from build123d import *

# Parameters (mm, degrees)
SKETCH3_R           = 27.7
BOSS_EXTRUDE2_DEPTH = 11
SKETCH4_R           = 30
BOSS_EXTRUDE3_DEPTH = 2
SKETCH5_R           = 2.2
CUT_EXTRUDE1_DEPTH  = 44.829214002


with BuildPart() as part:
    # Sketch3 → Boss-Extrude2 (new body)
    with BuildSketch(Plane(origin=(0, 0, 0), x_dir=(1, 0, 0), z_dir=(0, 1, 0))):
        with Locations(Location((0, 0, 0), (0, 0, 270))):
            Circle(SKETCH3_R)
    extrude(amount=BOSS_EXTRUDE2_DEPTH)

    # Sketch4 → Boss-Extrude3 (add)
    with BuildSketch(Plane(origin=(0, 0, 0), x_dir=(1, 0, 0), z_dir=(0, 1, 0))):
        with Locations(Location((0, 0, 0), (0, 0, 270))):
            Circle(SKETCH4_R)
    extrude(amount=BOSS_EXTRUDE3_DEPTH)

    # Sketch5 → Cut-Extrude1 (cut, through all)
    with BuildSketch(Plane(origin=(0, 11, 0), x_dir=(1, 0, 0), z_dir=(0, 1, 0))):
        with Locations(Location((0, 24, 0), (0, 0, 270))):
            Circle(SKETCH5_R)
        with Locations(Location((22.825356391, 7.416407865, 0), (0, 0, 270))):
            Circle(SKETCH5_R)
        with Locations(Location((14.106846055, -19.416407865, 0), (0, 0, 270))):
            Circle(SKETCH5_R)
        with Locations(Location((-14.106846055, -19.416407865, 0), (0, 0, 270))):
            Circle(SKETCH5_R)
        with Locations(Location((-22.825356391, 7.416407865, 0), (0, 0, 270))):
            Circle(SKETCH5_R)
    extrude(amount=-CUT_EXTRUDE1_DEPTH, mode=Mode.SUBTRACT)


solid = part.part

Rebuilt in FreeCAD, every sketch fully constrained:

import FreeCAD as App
import Part
import Sketcher

V = App.Vector

doc = App.newDocument("Part")
params = doc.addObject("Spreadsheet::Sheet", "Params")
for row, (alias, value) in enumerate([
    ("sketch1_diameter", "55.4 mm"),
    ("pad1_length", "11 mm"),
    ("sketch2_diameter", "60 mm"),
    ("pad2_length", "2 mm"),
    ("sketch3_diameter", "4.4 mm"),
], start=1):
    params.set(f"A{row}", alias)
    params.set(f"B{row}", "=" + value)
    params.setAlias(f"B{row}", alias)

body = doc.addObject("PartDesign::Body", "Body")

sketch1 = body.newObject("Sketcher::SketchObject", "Sketch")
sketch1.AttachmentSupport = (doc.getObject("XZ_Plane"), [""])
sketch1.MapMode = "FlatFace"
sketch1.addGeometry(Part.Circle(V(0, 0, 0), V(0, 0, 1), 28), False)
sketch1.addConstraint(Sketcher.Constraint("Coincident", 0, 3, -1, 1))
sketch1.addConstraint(Sketcher.Constraint("Diameter", 0, 55.4))
sketch1.setExpression("Constraints[1]", "Params.sketch1_diameter")
pad1 = body.newObject("PartDesign::Pad", "Pad")
pad1.Profile = sketch1
pad1.setExpression("Length", "Params.pad1_length")
pad1.Reversed = True

sketch2 = body.newObject("Sketcher::SketchObject", "Sketch001")
sketch2.AttachmentSupport = (doc.getObject("XZ_Plane"), [""])
sketch2.MapMode = "FlatFace"
sketch2.addGeometry(Part.Circle(V(0, 0, 0), V(0, 0, 1), 30), False)
sketch2.addConstraint(Sketcher.Constraint("Coincident", 0, 3, -1, 1))
sketch2.addConstraint(Sketcher.Constraint("Diameter", 0, 60.0))
sketch2.setExpression("Constraints[1]", "Params.sketch2_diameter")
pad2 = body.newObject("PartDesign::Pad", "Pad001")
pad2.Profile = sketch2
pad2.setExpression("Length", "Params.pad2_length")
pad2.Reversed = True

sketch3 = body.newObject("Sketcher::SketchObject", "Sketch002")
sketch3.AttachmentSupport = (doc.getObject("XZ_Plane"), [""])
sketch3.MapMode = "FlatFace"
sketch3.AttachmentOffset = App.Placement(V(0, 0, -11), App.Rotation())
sketch3.addGeometry(Part.Circle(V(0, -24, 0), V(0, 0, 1), 2.2), False)
sketch3.addGeometry(Part.Circle(V(22.8, -7.4, 0), V(0, 0, 1), 2.2), False)
sketch3.addGeometry(Part.Circle(V(14.1, 19.4, 0), V(0, 0, 1), 2.2), False)
sketch3.addGeometry(Part.Circle(V(-14.1, 19.4, 0), V(0, 0, 1), 2.2), False)
sketch3.addGeometry(Part.Circle(V(-22.8, -7.4, 0), V(0, 0, 1), 2.2), False)
sketch3.addConstraint(Sketcher.Constraint("Equal", 0, 1))
sketch3.addConstraint(Sketcher.Constraint("Equal", 1, 2))
sketch3.addConstraint(Sketcher.Constraint("Equal", 2, 3))
sketch3.addConstraint(Sketcher.Constraint("Equal", 3, 4))
sketch3.addConstraint(Sketcher.Constraint("Symmetric", 2, 3, 3, 3, -2))
sketch3.addConstraint(Sketcher.Constraint("Symmetric", 1, 3, 4, 3, -2))
sketch3.addConstraint(Sketcher.Constraint("PointOnObject", 0, 3, -2))
sketch3.addConstraint(Sketcher.Constraint("Diameter", 0, 4.4))
sketch3.addConstraint(Sketcher.Constraint("DistanceY", 0, 3, -1, 1, 24.0))
sketch3.addConstraint(Sketcher.Constraint("DistanceX", 2, 3, 1, 3, 8.71851))
sketch3.addConstraint(Sketcher.Constraint("DistanceX", -1, 1, 1, 3, 22.825356))
sketch3.addConstraint(Sketcher.Constraint("DistanceY", 1, 3, -1, 1, 7.416408))
sketch3.addConstraint(Sketcher.Constraint("DistanceY", -1, 1, 2, 3, 19.416408))
sketch3.setExpression("Constraints[7]", "Params.sketch3_diameter")
pocket1 = body.newObject("PartDesign::Pocket", "Pocket")
pocket1.Profile = sketch3
pocket1.Type = "ThroughAll"
pocket1.Reversed = True

doc.recompute()
